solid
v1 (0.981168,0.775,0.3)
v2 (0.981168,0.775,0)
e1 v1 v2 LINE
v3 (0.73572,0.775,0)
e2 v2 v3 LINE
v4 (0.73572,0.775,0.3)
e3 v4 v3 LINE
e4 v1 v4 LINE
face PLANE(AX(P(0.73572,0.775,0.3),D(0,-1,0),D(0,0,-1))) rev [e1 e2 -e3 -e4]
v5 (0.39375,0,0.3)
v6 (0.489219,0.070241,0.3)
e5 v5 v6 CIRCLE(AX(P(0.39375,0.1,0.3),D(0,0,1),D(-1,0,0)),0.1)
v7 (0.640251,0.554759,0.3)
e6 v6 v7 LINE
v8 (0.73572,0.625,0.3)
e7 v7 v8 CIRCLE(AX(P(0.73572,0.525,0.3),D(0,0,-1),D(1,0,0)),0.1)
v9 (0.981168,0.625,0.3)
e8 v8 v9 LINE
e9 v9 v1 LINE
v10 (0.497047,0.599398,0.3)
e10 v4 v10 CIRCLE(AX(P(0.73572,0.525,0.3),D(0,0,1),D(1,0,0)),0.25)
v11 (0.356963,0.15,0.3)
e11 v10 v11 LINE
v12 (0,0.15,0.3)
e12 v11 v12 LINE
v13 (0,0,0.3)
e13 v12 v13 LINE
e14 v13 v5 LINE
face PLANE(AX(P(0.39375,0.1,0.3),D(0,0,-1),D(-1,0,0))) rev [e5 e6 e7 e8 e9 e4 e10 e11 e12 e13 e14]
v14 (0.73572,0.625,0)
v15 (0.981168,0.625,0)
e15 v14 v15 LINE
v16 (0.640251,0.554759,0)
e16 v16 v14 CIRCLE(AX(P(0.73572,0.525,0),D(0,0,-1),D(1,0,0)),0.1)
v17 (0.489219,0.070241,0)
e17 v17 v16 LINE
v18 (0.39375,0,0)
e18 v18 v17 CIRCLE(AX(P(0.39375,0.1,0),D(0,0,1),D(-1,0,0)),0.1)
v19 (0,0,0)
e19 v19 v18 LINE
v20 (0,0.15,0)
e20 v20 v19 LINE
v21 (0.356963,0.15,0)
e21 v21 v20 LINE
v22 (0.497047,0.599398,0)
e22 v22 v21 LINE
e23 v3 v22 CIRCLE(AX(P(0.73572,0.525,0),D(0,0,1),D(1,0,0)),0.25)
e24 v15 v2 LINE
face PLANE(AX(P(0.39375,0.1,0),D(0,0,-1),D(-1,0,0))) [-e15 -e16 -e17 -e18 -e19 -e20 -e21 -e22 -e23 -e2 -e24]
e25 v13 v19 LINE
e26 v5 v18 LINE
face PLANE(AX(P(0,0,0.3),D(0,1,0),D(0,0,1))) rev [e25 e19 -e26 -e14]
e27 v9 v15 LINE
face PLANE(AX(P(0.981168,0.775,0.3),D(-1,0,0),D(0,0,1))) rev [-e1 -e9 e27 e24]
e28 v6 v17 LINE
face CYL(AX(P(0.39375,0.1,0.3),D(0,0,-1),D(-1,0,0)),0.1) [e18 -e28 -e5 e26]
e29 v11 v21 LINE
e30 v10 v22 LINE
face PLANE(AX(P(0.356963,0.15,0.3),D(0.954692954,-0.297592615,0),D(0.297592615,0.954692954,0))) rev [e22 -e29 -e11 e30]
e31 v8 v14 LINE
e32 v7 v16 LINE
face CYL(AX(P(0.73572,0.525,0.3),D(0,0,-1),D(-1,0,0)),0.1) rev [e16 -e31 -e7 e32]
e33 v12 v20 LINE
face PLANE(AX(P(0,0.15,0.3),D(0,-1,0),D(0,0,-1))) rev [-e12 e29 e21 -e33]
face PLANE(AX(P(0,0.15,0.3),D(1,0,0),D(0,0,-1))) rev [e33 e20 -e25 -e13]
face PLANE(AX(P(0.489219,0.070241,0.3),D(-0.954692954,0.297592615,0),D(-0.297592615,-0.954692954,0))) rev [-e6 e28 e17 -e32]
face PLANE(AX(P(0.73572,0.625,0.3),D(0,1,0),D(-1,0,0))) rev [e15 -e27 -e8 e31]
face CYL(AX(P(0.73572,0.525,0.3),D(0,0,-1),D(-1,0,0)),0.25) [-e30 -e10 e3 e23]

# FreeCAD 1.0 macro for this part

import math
import FreeCAD as App
import Part
import Sketcher
from FreeCAD import Vector

doc = App.newDocument("Part")
body = doc.addObject("PartDesign::Body", "Body")

# Sketch on XY plane
sketch1 = doc.addObject("Sketcher::SketchObject", "Sketch")
body.addObject(sketch1)
sketch1.AttachmentSupport = (doc.XY_Plane, [""])
sketch1.MapMode = "FlatFace"
sketch1.addGeometry([
    Part.LineSegment(Vector(0, 0, 0), Vector(0.39, 0, 0)),  # 0
    Part.ArcOfCircle(Part.Circle(Vector(0.39, 0.1, 0), Vector(0, 0, 1), 0.1), math.radians(-90), math.radians(-17)),  # 1
    Part.LineSegment(Vector(0.49, 0.07, 0), Vector(0.64, 0.55, 0)),  # 2
    Part.ArcOfCircle(Part.Circle(Vector(0.74, 0.53, 0), Vector(0, 0, 1), 0.1), math.radians(90), math.radians(163)),  # 3
    Part.LineSegment(Vector(0.74, 0.62, 0), Vector(0.98, 0.62, 0)),  # 4
    Part.LineSegment(Vector(0.98, 0.62, 0), Vector(0.98, 0.78, 0)),  # 5
    Part.LineSegment(Vector(0.98, 0.78, 0), Vector(0.74, 0.78, 0)),  # 6
    Part.ArcOfCircle(Part.Circle(Vector(0.74, 0.53, 0), Vector(0, 0, 1), 0.25), math.radians(90), math.radians(163)),  # 7
    Part.LineSegment(Vector(0.5, 0.6, 0), Vector(0.36, 0.15, 0)),  # 8
    Part.LineSegment(Vector(0.36, 0.15, 0), Vector(0, 0.15, 0)),  # 9
    Part.LineSegment(Vector(0, 0.15, 0), Vector(0, 0, 0)),  # 10
], False)
sketch1.addConstraint([
    Sketcher.Constraint("Tangent", 0, 2, 1, 1),
    Sketcher.Constraint("Tangent", 1, 2, 2, 1),
    Sketcher.Constraint("Tangent", 2, 2, 3, 2),
    Sketcher.Constraint("Tangent", 3, 1, 4, 1),
    Sketcher.Constraint("Coincident", 4, 2, 5, 1),
    Sketcher.Constraint("Coincident", 5, 2, 6, 1),
    Sketcher.Constraint("Tangent", 6, 2, 7, 1),
    Sketcher.Constraint("Tangent", 7, 2, 8, 1),
    Sketcher.Constraint("Coincident", 8, 2, 9, 1),
    Sketcher.Constraint("Coincident", 9, 2, 10, 1),
    Sketcher.Constraint("Coincident", 10, 2, 0, 1),
    Sketcher.Constraint("Horizontal", 0),
    Sketcher.Constraint("Horizontal", 4),
    Sketcher.Constraint("Vertical", 5),
    Sketcher.Constraint("Horizontal", 6),
    Sketcher.Constraint("Horizontal", 9),
    Sketcher.Constraint("Vertical", 10),
    Sketcher.Constraint("Coincident", 10, 2, -1, 1),
    Sketcher.Constraint("Coincident", 7, 3, 3, 3),
    Sketcher.Constraint("Equal", 1, 3),
    Sketcher.Constraint("Parallel", 2, 8),
    Sketcher.Constraint("Equal", 5, 10),
    Sketcher.Constraint("Radius", 1, 0.1),
    Sketcher.Constraint("Radius", 7, 0.25),
    Sketcher.Constraint("DistanceY", -1, 1, 3, 3, 0.525),
    Sketcher.Constraint("DistanceX", 0, 1, 0, 2, 0.39375),
    Sketcher.Constraint("DistanceY", -1, 1, 7, 2, 0.599398),
    Sketcher.Constraint("DistanceX", 4, 1, 4, 2, 0.245448),
])
pad1 = doc.addObject("PartDesign::Pad", "Pad")
body.addObject(pad1)
pad1.Profile = sketch1
pad1.Length = 0.3

doc.recompute()
